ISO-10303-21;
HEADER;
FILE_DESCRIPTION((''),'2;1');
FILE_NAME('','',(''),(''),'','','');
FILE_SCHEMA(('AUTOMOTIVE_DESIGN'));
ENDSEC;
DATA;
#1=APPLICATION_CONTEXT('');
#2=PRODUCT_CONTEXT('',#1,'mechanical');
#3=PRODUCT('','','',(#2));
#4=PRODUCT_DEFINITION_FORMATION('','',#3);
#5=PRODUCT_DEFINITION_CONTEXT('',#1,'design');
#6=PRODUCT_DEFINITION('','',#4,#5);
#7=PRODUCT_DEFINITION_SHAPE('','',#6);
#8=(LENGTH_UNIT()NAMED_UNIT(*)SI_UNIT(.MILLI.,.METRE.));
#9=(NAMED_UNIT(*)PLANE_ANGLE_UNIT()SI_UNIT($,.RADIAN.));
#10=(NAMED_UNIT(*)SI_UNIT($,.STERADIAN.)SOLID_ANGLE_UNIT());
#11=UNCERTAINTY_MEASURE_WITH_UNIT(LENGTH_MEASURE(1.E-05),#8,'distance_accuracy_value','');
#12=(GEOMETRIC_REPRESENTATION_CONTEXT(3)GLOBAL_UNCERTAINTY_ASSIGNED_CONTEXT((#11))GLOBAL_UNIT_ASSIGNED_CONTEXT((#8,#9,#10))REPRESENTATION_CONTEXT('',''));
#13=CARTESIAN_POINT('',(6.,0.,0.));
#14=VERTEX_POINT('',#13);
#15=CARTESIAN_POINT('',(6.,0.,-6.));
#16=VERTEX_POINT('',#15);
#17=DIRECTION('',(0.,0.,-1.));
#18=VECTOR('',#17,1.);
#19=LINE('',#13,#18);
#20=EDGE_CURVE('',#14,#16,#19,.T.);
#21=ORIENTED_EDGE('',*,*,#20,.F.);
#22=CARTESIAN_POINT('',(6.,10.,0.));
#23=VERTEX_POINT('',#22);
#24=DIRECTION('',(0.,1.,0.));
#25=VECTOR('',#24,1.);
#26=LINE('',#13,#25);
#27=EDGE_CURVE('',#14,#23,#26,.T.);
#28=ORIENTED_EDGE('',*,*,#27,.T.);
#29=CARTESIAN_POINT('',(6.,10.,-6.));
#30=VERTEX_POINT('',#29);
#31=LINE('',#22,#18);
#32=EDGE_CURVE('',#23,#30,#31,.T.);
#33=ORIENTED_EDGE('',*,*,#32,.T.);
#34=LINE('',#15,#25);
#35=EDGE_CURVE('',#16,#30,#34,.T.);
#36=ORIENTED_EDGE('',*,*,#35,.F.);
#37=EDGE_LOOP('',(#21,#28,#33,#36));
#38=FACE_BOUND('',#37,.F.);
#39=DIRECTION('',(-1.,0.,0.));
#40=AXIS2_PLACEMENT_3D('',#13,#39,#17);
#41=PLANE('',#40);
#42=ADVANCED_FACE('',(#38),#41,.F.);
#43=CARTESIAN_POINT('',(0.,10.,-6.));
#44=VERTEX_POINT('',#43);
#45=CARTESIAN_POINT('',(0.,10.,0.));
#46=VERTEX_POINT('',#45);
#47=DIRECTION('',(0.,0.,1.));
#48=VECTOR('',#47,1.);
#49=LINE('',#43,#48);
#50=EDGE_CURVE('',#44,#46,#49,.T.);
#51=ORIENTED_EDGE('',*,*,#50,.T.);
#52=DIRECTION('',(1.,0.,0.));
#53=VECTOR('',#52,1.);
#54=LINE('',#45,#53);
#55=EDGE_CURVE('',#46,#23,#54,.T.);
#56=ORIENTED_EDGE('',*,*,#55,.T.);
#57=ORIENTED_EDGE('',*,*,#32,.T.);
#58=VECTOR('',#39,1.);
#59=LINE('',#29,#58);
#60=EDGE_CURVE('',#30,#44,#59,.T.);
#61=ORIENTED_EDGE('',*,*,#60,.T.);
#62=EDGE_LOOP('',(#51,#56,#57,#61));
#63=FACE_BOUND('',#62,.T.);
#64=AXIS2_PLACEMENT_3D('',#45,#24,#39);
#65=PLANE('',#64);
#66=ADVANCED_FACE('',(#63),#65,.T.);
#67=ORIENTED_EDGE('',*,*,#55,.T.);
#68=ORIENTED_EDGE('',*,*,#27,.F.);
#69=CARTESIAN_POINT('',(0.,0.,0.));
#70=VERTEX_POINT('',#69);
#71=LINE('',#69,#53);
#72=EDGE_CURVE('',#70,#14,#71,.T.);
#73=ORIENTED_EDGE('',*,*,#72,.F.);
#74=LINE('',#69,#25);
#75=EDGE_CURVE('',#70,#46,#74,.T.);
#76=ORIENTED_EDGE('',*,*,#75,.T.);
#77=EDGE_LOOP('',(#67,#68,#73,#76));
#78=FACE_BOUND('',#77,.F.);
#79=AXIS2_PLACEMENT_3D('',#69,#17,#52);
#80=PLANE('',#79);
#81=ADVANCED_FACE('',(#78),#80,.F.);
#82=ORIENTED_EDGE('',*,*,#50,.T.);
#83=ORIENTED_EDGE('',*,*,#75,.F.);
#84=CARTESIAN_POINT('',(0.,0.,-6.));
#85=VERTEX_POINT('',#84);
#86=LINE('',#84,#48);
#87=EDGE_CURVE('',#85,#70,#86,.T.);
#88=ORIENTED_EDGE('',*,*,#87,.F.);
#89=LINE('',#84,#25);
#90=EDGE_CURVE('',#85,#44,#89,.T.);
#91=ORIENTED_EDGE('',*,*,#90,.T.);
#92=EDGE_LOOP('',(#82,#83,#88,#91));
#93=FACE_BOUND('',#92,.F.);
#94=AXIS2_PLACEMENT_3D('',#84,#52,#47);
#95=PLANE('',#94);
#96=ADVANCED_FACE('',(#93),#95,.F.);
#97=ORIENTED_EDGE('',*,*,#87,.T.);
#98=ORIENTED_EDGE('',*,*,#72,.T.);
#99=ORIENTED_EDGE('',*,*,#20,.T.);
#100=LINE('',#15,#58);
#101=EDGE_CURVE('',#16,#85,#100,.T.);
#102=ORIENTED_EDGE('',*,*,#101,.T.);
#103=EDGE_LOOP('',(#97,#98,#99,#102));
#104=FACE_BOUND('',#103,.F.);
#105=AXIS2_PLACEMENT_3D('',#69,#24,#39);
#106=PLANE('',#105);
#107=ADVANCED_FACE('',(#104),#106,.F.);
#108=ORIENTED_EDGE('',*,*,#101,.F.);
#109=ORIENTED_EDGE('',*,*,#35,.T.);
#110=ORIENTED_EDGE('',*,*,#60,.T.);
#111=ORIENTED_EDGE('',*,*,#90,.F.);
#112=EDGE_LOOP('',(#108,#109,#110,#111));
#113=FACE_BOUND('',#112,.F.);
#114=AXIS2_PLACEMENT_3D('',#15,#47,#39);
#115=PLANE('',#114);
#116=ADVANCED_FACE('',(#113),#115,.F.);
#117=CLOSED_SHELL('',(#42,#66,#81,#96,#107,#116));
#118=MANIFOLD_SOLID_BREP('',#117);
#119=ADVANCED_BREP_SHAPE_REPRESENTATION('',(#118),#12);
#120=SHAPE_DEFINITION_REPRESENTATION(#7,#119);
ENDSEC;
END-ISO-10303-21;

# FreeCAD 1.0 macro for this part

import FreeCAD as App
import Part
import Sketcher

V = App.Vector
Q = App.Units.Quantity

doc = App.newDocument("Part")
body = doc.addObject("PartDesign::Body", "Body")

# Sketch on XZ plane
sketch1 = body.newObject("Sketcher::SketchObject", "Sketch")
sketch1.AttachmentSupport = (doc.getObject("XZ_Plane"), [""])
sketch1.MapMode = "FlatFace"
sketch1.addGeometry([
    Part.LineSegment(V(0, -6, 0), V(0, 0, 0)),
    Part.LineSegment(V(0, 0, 0), V(6, 0, 0)),
    Part.LineSegment(V(6, 0, 0), V(6, -6, 0)),
    Part.LineSegment(V(6, -6, 0), V(0, -6, 0)),
], False)
sketch1.addConstraint([
    Sketcher.Constraint("Coincident", 0, 2, 1, 1),
    Sketcher.Constraint("Coincident", 1, 2, 2, 1),
    Sketcher.Constraint("Coincident", 2, 2, 3, 1),
    Sketcher.Constraint("Coincident", 3, 2, 0, 1),
    Sketcher.Constraint("Vertical", 0),
    Sketcher.Constraint("Horizontal", 1),
    Sketcher.Constraint("Vertical", 2),
    Sketcher.Constraint("Horizontal", 3),
    Sketcher.Constraint("Coincident", 0, 2, -1, 1),
    Sketcher.Constraint("Equal", 3, 0),
    Sketcher.Constraint("DistanceX", 1, 1, 1, 2, Q("6 mm")),
])
pad1 = body.newObject("PartDesign::Pad", "Pad")
pad1.Profile = sketch1
pad1.Length = 10
pad1.Reversed = True

doc.recompute()
